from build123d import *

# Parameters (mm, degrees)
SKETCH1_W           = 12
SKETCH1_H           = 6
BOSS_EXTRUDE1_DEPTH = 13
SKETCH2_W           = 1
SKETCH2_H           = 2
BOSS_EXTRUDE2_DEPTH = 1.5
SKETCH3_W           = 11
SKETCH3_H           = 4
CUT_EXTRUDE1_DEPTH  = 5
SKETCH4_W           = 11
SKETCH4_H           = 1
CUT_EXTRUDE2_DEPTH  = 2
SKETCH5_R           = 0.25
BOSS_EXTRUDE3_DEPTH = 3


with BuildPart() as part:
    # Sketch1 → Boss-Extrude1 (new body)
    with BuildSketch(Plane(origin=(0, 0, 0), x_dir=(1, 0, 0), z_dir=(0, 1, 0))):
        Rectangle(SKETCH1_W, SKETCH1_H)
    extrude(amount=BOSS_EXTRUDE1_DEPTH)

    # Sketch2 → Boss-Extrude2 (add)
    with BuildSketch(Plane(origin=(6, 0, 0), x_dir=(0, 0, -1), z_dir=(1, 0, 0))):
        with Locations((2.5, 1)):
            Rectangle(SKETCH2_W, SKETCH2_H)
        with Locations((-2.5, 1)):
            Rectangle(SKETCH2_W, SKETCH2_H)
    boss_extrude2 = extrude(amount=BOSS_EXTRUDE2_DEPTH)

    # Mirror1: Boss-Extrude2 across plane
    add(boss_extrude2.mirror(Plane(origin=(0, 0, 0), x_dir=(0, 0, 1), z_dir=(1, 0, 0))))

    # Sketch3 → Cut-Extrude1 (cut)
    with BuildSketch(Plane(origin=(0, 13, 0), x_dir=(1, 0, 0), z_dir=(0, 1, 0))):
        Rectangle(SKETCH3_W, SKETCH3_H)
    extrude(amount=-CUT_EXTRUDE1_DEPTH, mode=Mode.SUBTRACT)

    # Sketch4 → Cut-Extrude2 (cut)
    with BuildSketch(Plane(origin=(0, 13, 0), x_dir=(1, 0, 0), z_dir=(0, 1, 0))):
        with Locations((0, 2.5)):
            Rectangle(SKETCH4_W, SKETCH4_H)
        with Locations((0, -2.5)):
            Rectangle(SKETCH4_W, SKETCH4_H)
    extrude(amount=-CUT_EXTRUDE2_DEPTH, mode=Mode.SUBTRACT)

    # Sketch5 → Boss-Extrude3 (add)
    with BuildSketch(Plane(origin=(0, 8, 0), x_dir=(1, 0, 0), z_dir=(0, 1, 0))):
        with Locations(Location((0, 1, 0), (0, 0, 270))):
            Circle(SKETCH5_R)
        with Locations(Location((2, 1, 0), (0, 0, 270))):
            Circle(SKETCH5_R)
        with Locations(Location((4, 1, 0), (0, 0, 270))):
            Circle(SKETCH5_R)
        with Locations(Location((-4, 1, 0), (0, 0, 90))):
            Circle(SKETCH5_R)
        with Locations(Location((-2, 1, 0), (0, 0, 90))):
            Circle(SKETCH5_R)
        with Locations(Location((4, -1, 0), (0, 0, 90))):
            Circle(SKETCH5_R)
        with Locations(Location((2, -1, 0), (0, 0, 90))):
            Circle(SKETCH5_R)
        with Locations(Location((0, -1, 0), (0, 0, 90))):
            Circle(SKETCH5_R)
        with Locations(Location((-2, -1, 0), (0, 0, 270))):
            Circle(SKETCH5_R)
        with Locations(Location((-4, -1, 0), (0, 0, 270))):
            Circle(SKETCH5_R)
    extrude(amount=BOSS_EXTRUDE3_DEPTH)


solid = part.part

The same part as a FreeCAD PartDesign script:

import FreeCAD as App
import Part
import Sketcher

V = App.Vector
Q = App.Units.Quantity


def add_polygon(sketch, points):
    """Adds a closed chain of lines whose ends are joined by coincident constraints."""
    first, n = sketch.GeometryCount, len(points)
    for a, b in zip(points, points[1:] + points[:1]):
        sketch.addGeometry(Part.LineSegment(App.Vector(*a, 0), App.Vector(*b, 0)), False)
    for i in range(n):
        sketch.addConstraint(Sketcher.Constraint("Coincident", first + i, 2, first + (i + 1) % n, 1))

doc = App.newDocument("Part")
body = doc.addObject("PartDesign::Body", "Body")

sketch1 = body.newObject("Sketcher::SketchObject", "Sketch")
sketch1.AttachmentSupport = (doc.getObject("XZ_Plane"), [""])
sketch1.MapMode = "FlatFace"
add_polygon(sketch1, [(-6, -3), (-6, 3), (6, 3), (6, -3)])
sketch1.addConstraint(Sketcher.Constraint("Vertical", 0))
sketch1.addConstraint(Sketcher.Constraint("Horizontal", 1))
sketch1.addConstraint(Sketcher.Constraint("Vertical", 2))
sketch1.addConstraint(Sketcher.Constraint("Horizontal", 3))
sketch1.addConstraint(Sketcher.Constraint("Symmetric", 0, 2, 2, 2, -1, 1))
sketch1.addConstraint(Sketcher.Constraint("DistanceX", 1, 1, 1, 2, Q("12 mm")))
sketch1.addConstraint(Sketcher.Constraint("DistanceY", 0, 1, 0, 2, Q("6 mm")))
pad1 = body.newObject("PartDesign::Pad", "Pad")
pad1.Profile = sketch1
pad1.Length = 13
pad1.Reversed = True

sketch2 = body.newObject("Sketcher::SketchObject", "Sketch001")
sketch2.AttachmentSupport = (doc.getObject("YZ_Plane"), [""])
sketch2.MapMode = "FlatFace"
sketch2.AttachmentOffset = App.Placement(V(0, 0, 6), App.Rotation())
add_polygon(sketch2, [(2, -2), (0, -2), (0, -3), (2, -3)])
add_polygon(sketch2, [(2, 3), (0, 3), (0, 2), (2, 2)])
sketch2.addConstraint(Sketcher.Constraint("Horizontal", 0))
sketch2.addConstraint(Sketcher.Constraint("Vertical", 1))
sketch2.addConstraint(Sketcher.Constraint("Horizontal", 2))
sketch2.addConstraint(Sketcher.Constraint("Vertical", 3))
sketch2.addConstraint(Sketcher.Constraint("Horizontal", 4))
sketch2.addConstraint(Sketcher.Constraint("Vertical", 5))
sketch2.addConstraint(Sketcher.Constraint("Horizontal", 6))
sketch2.addConstraint(Sketcher.Constraint("Vertical", 7))
sketch2.addConstraint(Sketcher.Constraint("Symmetric", 1, 2, 4, 2, -1, 1))
sketch2.addConstraint(Sketcher.Constraint("Symmetric", 0, 2, 5, 2, -1))
sketch2.addConstraint(Sketcher.Constraint("Vertical", 3, 2, 6, 2))
sketch2.addConstraint(Sketcher.Constraint("DistanceX", 0, 2, 0, 1, Q("2 mm")))
sketch2.addConstraint(Sketcher.Constraint("DistanceY", 1, 2, 1, 1, Q("1 mm")))
sketch2.addConstraint(Sketcher.Constraint("DistanceY", 0, 2, -1, 1, Q("2 mm")))
pad2 = body.newObject("PartDesign::Pad", "Pad001")
pad2.Profile = sketch2
pad2.Length = 1.5
doc.recompute()

mirrored = body.newObject("PartDesign::Mirrored", "Mirrored")
mirrored.Originals = [pad2]
mirrored.MirrorPlane = (doc.getObject("YZ_Plane"), [""])
body.Tip = mirrored

sketch3 = body.newObject("Sketcher::SketchObject", "Sketch002")
sketch3.AttachmentSupport = (doc.getObject("XZ_Plane"), [""])
sketch3.MapMode = "FlatFace"
sketch3.AttachmentOffset = App.Placement(V(0, 0, -13), App.Rotation())
add_polygon(sketch3, [(-5.5, -2), (-5.5, 2), (5.5, 2), (5.5, -2)])
sketch3.addConstraint(Sketcher.Constraint("Vertical", 0))
sketch3.addConstraint(Sketcher.Constraint("Horizontal", 1))
sketch3.addConstraint(Sketcher.Constraint("Vertical", 2))
sketch3.addConstraint(Sketcher.Constraint("Horizontal", 3))
sketch3.addConstraint(Sketcher.Constraint("Symmetric", 0, 2, 2, 2, -1, 1))
sketch3.addConstraint(Sketcher.Constraint("DistanceX", 1, 1, 1, 2, Q("11 mm")))
sketch3.addConstraint(Sketcher.Constraint("DistanceY", 0, 1, 0, 2, Q("4 mm")))
pocket1 = body.newObject("PartDesign::Pocket", "Pocket")
pocket1.Profile = sketch3
pocket1.Length = 5
pocket1.Reversed = True

sketch4 = body.newObject("Sketcher::SketchObject", "Sketch003")
sketch4.AttachmentSupport = (doc.getObject("XZ_Plane"), [""])
sketch4.MapMode = "FlatFace"
sketch4.AttachmentOffset = App.Placement(V(0, 0, -13), App.Rotation())
add_polygon(sketch4, [(-5.5, -3), (-5.5, -2), (5.5, -2), (5.5, -3)])
add_polygon(sketch4, [(-5.5, 2), (-5.5, 3), (5.5, 3), (5.5, 2)])
sketch4.addConstraint(Sketcher.Constraint("Vertical", 0))
sketch4.addConstraint(Sketcher.Constraint("Horizontal", 1))
sketch4.addConstraint(Sketcher.Constraint("Vertical", 2))
sketch4.addConstraint(Sketcher.Constraint("Horizontal", 3))
sketch4.addConstraint(Sketcher.Constraint("Vertical", 4))
sketch4.addConstraint(Sketcher.Constraint("Horizontal", 5))
sketch4.addConstraint(Sketcher.Constraint("Vertical", 6))
sketch4.addConstraint(Sketcher.Constraint("Horizontal", 7))
sketch4.addConstraint(Sketcher.Constraint("Symmetric", 2, 2, 4, 2, -1, 1))
sketch4.addConstraint(Sketcher.Constraint("Symmetric", 0, 2, 6, 2, -1, 1))
sketch4.addConstraint(Sketcher.Constraint("Vertical", 3, 2, 4, 2))
sketch4.addConstraint(Sketcher.Constraint("DistanceX", 1, 1, 1, 2, Q("11 mm")))
sketch4.addConstraint(Sketcher.Constraint("DistanceY", 0, 1, 0, 2, Q("1 mm")))
sketch4.addConstraint(Sketcher.Constraint("DistanceY", 0, 2, -1, 1, Q("2 mm")))
pocket2 = body.newObject("PartDesign::Pocket", "Pocket001")
pocket2.Profile = sketch4
pocket2.Length = 2
pocket2.Reversed = True

sketch5 = body.newObject("Sketcher::SketchObject", "Sketch004")
sketch5.AttachmentSupport = (doc.getObject("XZ_Plane"), [""])
sketch5.MapMode = "FlatFace"
sketch5.AttachmentOffset = App.Placement(V(0, 0, -8), App.Rotation())
sketch5.addGeometry(Part.Circle(V(0, -1, 0), V(0, 0, 1), 0.25), False)
sketch5.addGeometry(Part.Circle(V(2, -1, 0), V(0, 0, 1), 0.25), False)
sketch5.addGeometry(Part.Circle(V(4, -1, 0), V(0, 0, 1), 0.25), False)
sketch5.addGeometry(Part.Circle(V(-4, -1, 0), V(0, 0, 1), 0.25), False)
sketch5.addGeometry(Part.Circle(V(-2, -1, 0), V(0, 0, 1), 0.25), False)
sketch5.addGeometry(Part.Circle(V(4, 1, 0), V(0, 0, 1), 0.25), False)
sketch5.addGeometry(Part.Circle(V(2, 1, 0), V(0, 0, 1), 0.25), False)
sketch5.addGeometry(Part.Circle(V(0, 1, 0), V(0, 0, 1), 0.25), False)
sketch5.addGeometry(Part.Circle(V(-2, 1, 0), V(0, 0, 1), 0.25), False)
sketch5.addGeometry(Part.Circle(V(-4, 1, 0), V(0, 0, 1), 0.25), False)
sketch5.addConstraint(Sketcher.Constraint("Equal", 0, 1))
sketch5.addConstraint(Sketcher.Constraint("Equal", 1, 2))
sketch5.addConstraint(Sketcher.Constraint("Equal", 2, 3))
sketch5.addConstraint(Sketcher.Constraint("Equal", 3, 4))
sketch5.addConstraint(Sketcher.Constraint("Equal", 4, 5))
sketch5.addConstraint(Sketcher.Constraint("Equal", 5, 6))
sketch5.addConstraint(Sketcher.Constraint("Equal", 6, 7))
sketch5.addConstraint(Sketcher.Constraint("Equal", 7, 8))
sketch5.addConstraint(Sketcher.Constraint("Equal", 8, 9))
sketch5.addConstraint(Sketcher.Constraint("Symmetric", 3, 3, 5, 3, -1, 1))
sketch5.addConstraint(Sketcher.Constraint("Symmetric", 4, 3, 6, 3, -1, 1))
sketch5.addConstraint(Sketcher.Constraint("Symmetric", 0, 3, 7, 3, -1, 1))
sketch5.addConstraint(Sketcher.Constraint("Symmetric", 1, 3, 8, 3, -1, 1))
sketch5.addConstraint(Sketcher.Constraint("Symmetric", 2, 3, 9, 3, -1, 1))
sketch5.addConstraint(Sketcher.Constraint("Symmetric", 2, 3, 3, 3, -2))
sketch5.addConstraint(Sketcher.Constraint("Symmetric", 1, 3, 4, 3, -2))
sketch5.addConstraint(Sketcher.Constraint("PointOnObject", 0, 3, -2))
sketch5.addConstraint(Sketcher.Constraint("Horizontal", 0, 3, 1, 3))
sketch5.addConstraint(Sketcher.Constraint("Horizontal", 1, 3, 2, 3))
sketch5.addConstraint(Sketcher.Constraint("Diameter", 0, Q("0.5 mm")))
sketch5.addConstraint(Sketcher.Constraint("DistanceY", 0, 3, -1, 1, Q("1 mm")))
sketch5.addConstraint(Sketcher.Constraint("DistanceX", -1, 1, 1, 3, Q("2 mm")))
sketch5.addConstraint(Sketcher.Constraint("DistanceX", -1, 1, 2, 3, Q("4 mm")))
pad3 = body.newObject("PartDesign::Pad", "Pad002")
pad3.Profile = sketch5
pad3.Length = 3
pad3.Reversed = True

doc.recompute()
